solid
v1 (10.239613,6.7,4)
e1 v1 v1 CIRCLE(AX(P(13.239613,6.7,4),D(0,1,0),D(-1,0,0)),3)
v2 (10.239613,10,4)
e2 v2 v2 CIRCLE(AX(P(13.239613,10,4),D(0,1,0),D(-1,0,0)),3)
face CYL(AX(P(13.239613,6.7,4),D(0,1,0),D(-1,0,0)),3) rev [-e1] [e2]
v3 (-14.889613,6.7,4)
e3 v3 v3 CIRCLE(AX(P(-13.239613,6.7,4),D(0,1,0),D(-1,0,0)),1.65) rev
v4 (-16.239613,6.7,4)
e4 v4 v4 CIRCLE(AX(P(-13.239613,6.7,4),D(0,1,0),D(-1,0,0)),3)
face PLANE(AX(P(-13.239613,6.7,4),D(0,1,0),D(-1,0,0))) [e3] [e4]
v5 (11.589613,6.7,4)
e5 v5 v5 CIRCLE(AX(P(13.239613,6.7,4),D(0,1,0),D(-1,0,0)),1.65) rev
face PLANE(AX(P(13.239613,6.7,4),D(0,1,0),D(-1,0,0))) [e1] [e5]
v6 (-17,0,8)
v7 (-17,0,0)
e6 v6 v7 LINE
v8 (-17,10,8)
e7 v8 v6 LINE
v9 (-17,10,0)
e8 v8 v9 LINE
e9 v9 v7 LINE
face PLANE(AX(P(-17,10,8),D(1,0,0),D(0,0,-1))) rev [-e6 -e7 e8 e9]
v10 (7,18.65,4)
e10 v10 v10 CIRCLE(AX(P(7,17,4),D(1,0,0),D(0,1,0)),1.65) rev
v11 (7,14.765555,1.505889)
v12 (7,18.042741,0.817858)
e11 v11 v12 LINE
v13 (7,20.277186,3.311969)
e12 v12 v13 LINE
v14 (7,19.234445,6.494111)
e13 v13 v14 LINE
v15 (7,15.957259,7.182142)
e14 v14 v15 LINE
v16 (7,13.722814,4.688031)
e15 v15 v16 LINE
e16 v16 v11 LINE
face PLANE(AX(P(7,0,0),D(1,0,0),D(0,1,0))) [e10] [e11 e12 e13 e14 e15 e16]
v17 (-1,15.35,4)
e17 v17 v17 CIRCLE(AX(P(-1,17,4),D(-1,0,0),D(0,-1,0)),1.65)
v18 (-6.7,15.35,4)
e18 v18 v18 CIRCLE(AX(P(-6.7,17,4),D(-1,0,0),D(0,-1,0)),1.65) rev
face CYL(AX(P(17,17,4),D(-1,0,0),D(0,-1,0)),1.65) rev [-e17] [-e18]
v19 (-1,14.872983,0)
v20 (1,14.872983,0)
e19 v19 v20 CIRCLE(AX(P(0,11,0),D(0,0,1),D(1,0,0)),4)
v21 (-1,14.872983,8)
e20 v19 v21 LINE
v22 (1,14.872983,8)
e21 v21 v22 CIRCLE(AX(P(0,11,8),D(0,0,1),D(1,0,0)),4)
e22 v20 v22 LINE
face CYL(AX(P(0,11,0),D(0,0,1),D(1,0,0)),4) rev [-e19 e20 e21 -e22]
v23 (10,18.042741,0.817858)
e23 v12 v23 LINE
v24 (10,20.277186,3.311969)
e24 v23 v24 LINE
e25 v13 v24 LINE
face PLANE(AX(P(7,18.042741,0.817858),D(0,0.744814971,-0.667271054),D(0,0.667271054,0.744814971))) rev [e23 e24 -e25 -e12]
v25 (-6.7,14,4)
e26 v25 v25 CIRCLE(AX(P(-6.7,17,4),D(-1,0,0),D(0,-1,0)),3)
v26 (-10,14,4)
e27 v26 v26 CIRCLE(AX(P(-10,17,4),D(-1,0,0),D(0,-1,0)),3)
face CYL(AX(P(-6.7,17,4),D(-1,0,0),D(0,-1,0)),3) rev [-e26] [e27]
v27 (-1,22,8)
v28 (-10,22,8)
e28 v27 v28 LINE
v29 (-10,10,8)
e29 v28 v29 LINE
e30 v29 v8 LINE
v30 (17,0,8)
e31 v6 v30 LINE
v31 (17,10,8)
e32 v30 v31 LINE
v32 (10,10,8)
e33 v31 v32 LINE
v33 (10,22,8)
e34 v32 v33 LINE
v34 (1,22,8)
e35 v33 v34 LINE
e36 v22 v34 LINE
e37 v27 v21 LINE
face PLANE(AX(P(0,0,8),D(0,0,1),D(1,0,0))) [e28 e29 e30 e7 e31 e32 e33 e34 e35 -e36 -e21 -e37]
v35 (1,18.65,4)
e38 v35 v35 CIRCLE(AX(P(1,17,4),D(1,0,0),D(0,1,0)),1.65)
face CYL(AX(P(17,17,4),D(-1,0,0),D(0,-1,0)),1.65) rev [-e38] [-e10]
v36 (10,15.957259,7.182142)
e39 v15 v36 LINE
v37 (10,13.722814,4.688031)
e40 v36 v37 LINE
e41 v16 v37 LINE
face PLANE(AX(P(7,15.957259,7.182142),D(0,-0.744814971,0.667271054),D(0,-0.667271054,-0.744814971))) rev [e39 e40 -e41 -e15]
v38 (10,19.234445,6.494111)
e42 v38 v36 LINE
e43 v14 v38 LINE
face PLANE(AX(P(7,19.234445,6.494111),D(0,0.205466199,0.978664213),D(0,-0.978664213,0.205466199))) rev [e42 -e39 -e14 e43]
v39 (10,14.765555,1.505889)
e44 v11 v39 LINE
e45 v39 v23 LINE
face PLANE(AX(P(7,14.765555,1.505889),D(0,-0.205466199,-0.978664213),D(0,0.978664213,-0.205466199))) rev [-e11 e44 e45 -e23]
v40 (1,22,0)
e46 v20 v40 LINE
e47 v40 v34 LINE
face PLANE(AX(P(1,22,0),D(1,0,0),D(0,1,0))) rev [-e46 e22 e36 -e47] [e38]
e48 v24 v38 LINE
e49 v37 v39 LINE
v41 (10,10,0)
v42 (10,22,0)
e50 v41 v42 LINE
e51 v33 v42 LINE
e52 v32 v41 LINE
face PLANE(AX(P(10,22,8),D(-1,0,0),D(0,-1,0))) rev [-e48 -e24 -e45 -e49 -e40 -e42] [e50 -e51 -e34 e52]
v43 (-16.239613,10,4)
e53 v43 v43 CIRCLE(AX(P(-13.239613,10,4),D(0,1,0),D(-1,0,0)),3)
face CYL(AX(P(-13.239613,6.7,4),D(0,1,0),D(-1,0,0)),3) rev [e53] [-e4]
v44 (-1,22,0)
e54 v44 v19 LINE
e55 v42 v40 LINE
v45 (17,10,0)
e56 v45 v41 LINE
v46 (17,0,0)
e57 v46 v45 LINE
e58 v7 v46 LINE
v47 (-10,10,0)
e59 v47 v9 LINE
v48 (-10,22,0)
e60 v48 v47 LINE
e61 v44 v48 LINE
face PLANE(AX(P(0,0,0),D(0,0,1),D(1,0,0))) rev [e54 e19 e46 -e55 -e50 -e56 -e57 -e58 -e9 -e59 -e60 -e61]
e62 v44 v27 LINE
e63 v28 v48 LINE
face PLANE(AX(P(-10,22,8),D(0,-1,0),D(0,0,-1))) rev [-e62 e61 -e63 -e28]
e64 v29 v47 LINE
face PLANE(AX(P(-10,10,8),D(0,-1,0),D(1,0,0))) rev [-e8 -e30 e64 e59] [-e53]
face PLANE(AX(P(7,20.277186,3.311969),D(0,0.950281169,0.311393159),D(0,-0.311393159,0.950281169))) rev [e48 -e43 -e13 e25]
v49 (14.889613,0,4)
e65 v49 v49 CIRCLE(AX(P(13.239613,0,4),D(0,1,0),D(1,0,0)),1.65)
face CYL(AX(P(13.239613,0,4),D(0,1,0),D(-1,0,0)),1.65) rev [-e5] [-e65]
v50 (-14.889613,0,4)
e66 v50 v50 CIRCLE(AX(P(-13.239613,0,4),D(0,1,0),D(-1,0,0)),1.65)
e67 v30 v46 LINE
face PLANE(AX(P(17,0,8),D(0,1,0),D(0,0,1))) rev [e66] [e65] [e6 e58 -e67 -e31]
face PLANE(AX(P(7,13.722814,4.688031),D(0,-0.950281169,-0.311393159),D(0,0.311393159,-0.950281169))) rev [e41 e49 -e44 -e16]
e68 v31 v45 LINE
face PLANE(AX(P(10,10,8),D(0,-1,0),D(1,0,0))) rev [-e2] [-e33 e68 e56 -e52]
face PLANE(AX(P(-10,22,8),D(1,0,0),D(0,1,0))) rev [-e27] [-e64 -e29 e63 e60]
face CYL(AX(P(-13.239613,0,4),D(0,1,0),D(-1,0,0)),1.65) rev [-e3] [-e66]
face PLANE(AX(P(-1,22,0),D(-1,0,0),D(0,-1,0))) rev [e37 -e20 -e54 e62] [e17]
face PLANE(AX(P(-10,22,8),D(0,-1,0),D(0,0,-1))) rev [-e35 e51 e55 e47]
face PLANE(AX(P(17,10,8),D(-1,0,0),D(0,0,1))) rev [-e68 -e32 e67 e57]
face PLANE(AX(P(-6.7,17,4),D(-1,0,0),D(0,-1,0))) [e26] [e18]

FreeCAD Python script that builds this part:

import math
import FreeCAD as App
import Part
import Sketcher
Q = App.Units.Quantity

doc = App.newDocument("Part")
body = doc.addObject("PartDesign::Body", "Body")

sketch1 = body.newObject("Sketcher::SketchObject", "Sketch")
sketch1.AttachmentSupport = (doc.getObject("XY_Plane"), [""])
sketch1.MapMode = "FlatFace"
sketch1.addGeometry([
    Part.LineSegment(App.Vector(10, 22, 0), App.Vector(-10, 22, 0)),
    Part.LineSegment(App.Vector(-10, 22, 0), App.Vector(-10, 10, 0)),
    Part.LineSegment(App.Vector(-10, 10, 0), App.Vector(-17, 10, 0)),
    Part.LineSegment(App.Vector(-17, 10, 0), App.Vector(-17, 0, 0)),
    Part.LineSegment(App.Vector(-17, 0, 0), App.Vector(17, 0, 0)),
    Part.LineSegment(App.Vector(17, 0, 0), App.Vector(17, 10, 0)),
    Part.LineSegment(App.Vector(17, 10, 0), App.Vector(10, 10, 0)),
    Part.LineSegment(App.Vector(10, 10, 0), App.Vector(10, 22, 0)),
], False)
sketch1.addConstraint([
    Sketcher.Constraint("Coincident", 0, 2, 1, 1),
    Sketcher.Constraint("Coincident", 1, 2, 2, 1),
    Sketcher.Constraint("Coincident", 2, 2, 3, 1),
    Sketcher.Constraint("Coincident", 3, 2, 4, 1),
    Sketcher.Constraint("Coincident", 4, 2, 5, 1),
    Sketcher.Constraint("Coincident", 5, 2, 6, 1),
    Sketcher.Constraint("Coincident", 6, 2, 7, 1),
    Sketcher.Constraint("Coincident", 7, 2, 0, 1),
    Sketcher.Constraint("Horizontal", 0),
    Sketcher.Constraint("Vertical", 1),
    Sketcher.Constraint("Horizontal", 2),
    Sketcher.Constraint("Vertical", 3),
    Sketcher.Constraint("Horizontal", 4),
    Sketcher.Constraint("Vertical", 5),
    Sketcher.Constraint("Horizontal", 6),
    Sketcher.Constraint("Vertical", 7),
    Sketcher.Constraint("Symmetric", 3, 2, 4, 2, -1, 1),
    Sketcher.Constraint("Symmetric", 1, 2, 6, 2, -2),
    Sketcher.Constraint("DistanceX", 0, 2, 0, 1, Q("20 mm")),
    Sketcher.Constraint("DistanceX", 2, 2, 2, 1, Q("7 mm")),
    Sketcher.Constraint("DistanceY", 1, 2, 1, 1, Q("12 mm")),
    Sketcher.Constraint("DistanceY", 3, 2, 3, 1, Q("10 mm")),
])
pad1 = body.newObject("PartDesign::Pad", "Pad")
pad1.Profile = sketch1
pad1.Length = 8

sketch2 = body.newObject("Sketcher::SketchObject", "Sketch001")
sketch2.AttachmentSupport = (doc.getObject("XY_Plane"), [""])
sketch2.MapMode = "FlatFace"
sketch2.AttachmentOffset = App.Placement(App.Vector(0, 0, 8), App.Rotation())
sketch2.addGeometry([
    Part.LineSegment(App.Vector(1, 22, 0), App.Vector(-1, 22, 0)),
    Part.LineSegment(App.Vector(-1, 22, 0), App.Vector(-1, 14.9, 0)),
    Part.ArcOfCircle(Part.Circle(App.Vector(0, 11, 0), App.Vector(0, 0, 1), 4), math.radians(104), math.radians(436)),
    Part.LineSegment(App.Vector(1, 14.9, 0), App.Vector(1, 22, 0)),
], False)
sketch2.addConstraint([
    Sketcher.Constraint("Coincident", 0, 2, 1, 1),
    Sketcher.Constraint("Coincident", 1, 2, 2, 1),
    Sketcher.Constraint("Coincident", 2, 2, 3, 1),
    Sketcher.Constraint("Coincident", 3, 2, 0, 1),
    Sketcher.Constraint("Horizontal", 0),
    Sketcher.Constraint("Vertical", 1),
    Sketcher.Constraint("Vertical", 3),
    Sketcher.Constraint("Symmetric", 1, 2, 2, 2, -2),
    Sketcher.Constraint("Radius", 2, Q("4 mm")),
    Sketcher.Constraint("DistanceX", 0, 2, 0, 1, Q("2 mm")),
    Sketcher.Constraint("DistanceY", -1, 1, 2, 3, Q("11 mm")),
    Sketcher.Constraint("DistanceY", -1, 1, 0, 2, Q("22 mm")),
])
pocket1 = body.newObject("PartDesign::Pocket", "Pocket")
pocket1.Profile = sketch2
pocket1.Type = "ThroughAll"

sketch3 = body.newObject("Sketcher::SketchObject", "Sketch002")
sketch3.AttachmentSupport = (doc.getObject("YZ_Plane"), [""])
sketch3.MapMode = "FlatFace"
sketch3.AttachmentOffset = App.Placement(App.Vector(0, 0, -10), App.Rotation())
sketch3.addGeometry(Part.Circle(App.Vector(17, 4, 0), App.Vector(0, 0, 1), 1.6), False)
sketch3.addConstraint([
    Sketcher.Constraint("Diameter", 0, Q("3.3 mm")),
    Sketcher.Constraint("DistanceX", -1, 1, 0, 3, Q("17 mm")),
    Sketcher.Constraint("DistanceY", -1, 1, 0, 3, Q("4 mm")),
])
pocket2 = body.newObject("PartDesign::Pocket", "Pocket001")
pocket2.Profile = sketch3
pocket2.Type = "ThroughAll"
pocket2.Reversed = True

sketch4 = body.newObject("Sketcher::SketchObject", "Sketch003")
sketch4.AttachmentSupport = (doc.getObject("YZ_Plane"), [""])
sketch4.MapMode = "FlatFace"
sketch4.AttachmentOffset = App.Placement(App.Vector(0, 0, -10), App.Rotation())
sketch4.addGeometry(Part.Circle(App.Vector(17, 4, 0), App.Vector(0, 0, 1), 3), False)
sketch4.addConstraint([
    Sketcher.Constraint("Diameter", 0, Q("6 mm")),
    Sketcher.Constraint("DistanceX", -1, 1, 0, 3, Q("17 mm")),
    Sketcher.Constraint("DistanceY", -1, 1, 0, 3, Q("4 mm")),
])
pocket3 = body.newObject("PartDesign::Pocket", "Pocket002")
pocket3.Profile = sketch4
pocket3.Length = 3.3
pocket3.Reversed = True

sketch5 = body.newObject("Sketcher::SketchObject", "Sketch004")
sketch5.AttachmentSupport = (doc.getObject("YZ_Plane"), [""])
sketch5.MapMode = "FlatFace"
sketch5.AttachmentOffset = App.Placement(App.Vector(0, 0, 10), App.Rotation())
sketch5.addGeometry([
    Part.LineSegment(App.Vector(19.2, 6.5, 0), App.Vector(16, 7.2, 0)),
    Part.LineSegment(App.Vector(16, 7.2, 0), App.Vector(13.7, 4.7, 0)),
    Part.LineSegment(App.Vector(13.7, 4.7, 0), App.Vector(14.8, 1.5, 0)),
    Part.LineSegment(App.Vector(14.8, 1.5, 0), App.Vector(18, 0.8, 0)),
    Part.LineSegment(App.Vector(18, 0.8, 0), App.Vector(20.3, 3.3, 0)),
    Part.LineSegment(App.Vector(20.3, 3.3, 0), App.Vector(19.2, 6.5, 0)),
], False)
sketch5.addConstraint([
    Sketcher.Constraint("Coincident", 0, 2, 1, 1),
    Sketcher.Constraint("Coincident", 1, 2, 2, 1),
    Sketcher.Constraint("Coincident", 2, 2, 3, 1),
    Sketcher.Constraint("Coincident", 3, 2, 4, 1),
    Sketcher.Constraint("Coincident", 4, 2, 5, 1),
    Sketcher.Constraint("Coincident", 5, 2, 0, 1),
    Sketcher.Constraint("Parallel", 0, 3),
    Sketcher.Constraint("Parallel", 1, 4),
    Sketcher.Constraint("Parallel", 2, 5),
    Sketcher.Constraint("Equal", 0, 1),
    Sketcher.Constraint("Equal", 1, 2),
    Sketcher.Constraint("Equal", 2, 3),
    Sketcher.Constraint("Distance", 0, Q("3.348632 mm")),
    Sketcher.Constraint("DistanceX", -1, 1, 0, 2, Q("15.957259 mm")),
    Sketcher.Constraint("DistanceY", -1, 1, 0, 2, Q("7.182142 mm")),
    Sketcher.Constraint("DistanceY", -1, 1, 1, 2, Q("4.688031 mm")),
    Sketcher.Constraint("DistanceY", -1, 1, 2, 2, Q("1.505889 mm")),
    Sketcher.Constraint("DistanceX", -1, 1, 3, 2, Q("18.042741 mm")),
])
pocket4 = body.newObject("PartDesign::Pocket", "Pocket003")
pocket4.Profile = sketch5
pocket4.Length = 3

sketch6 = body.newObject("Sketcher::SketchObject", "Sketch005")
sketch6.AttachmentSupport = (doc.getObject("XZ_Plane"), [""])
sketch6.MapMode = "FlatFace"
sketch6.AttachmentOffset = App.Placement(App.Vector(0, 0, -10), App.Rotation())
sketch6.addGeometry([
    Part.Circle(App.Vector(-13.2, 4, 0), App.Vector(0, 0, 1), 1.6),
    Part.Circle(App.Vector(13.2, 4, 0), App.Vector(0, 0, 1), 1.6),
], False)
sketch6.addConstraint([
    Sketcher.Constraint("Equal", 0, 1),
    Sketcher.Constraint("Symmetric", 0, 3, 1, 3, -2),
    Sketcher.Constraint("Diameter", 0, Q("3.3 mm")),
    Sketcher.Constraint("DistanceY", -1, 1, 0, 3, Q("4 mm")),
    Sketcher.Constraint("DistanceX", 0, 3, -1, 1, Q("13.239613 mm")),
])
pocket5 = body.newObject("PartDesign::Pocket", "Pocket004")
pocket5.Profile = sketch6
pocket5.Type = "ThroughAll"
pocket5.Reversed = True

sketch7 = body.newObject("Sketcher::SketchObject", "Sketch006")
sketch7.AttachmentSupport = (doc.getObject("XZ_Plane"), [""])
sketch7.MapMode = "FlatFace"
sketch7.AttachmentOffset = App.Placement(App.Vector(0, 0, -10), App.Rotation())
sketch7.addGeometry([
    Part.Circle(App.Vector(13.2, 4, 0), App.Vector(0, 0, 1), 3),
    Part.Circle(App.Vector(-13.2, 4, 0), App.Vector(0, 0, 1), 3),
], False)
sketch7.addConstraint([
    Sketcher.Constraint("Equal", 0, 1),
    Sketcher.Constraint("Symmetric", 0, 3, 1, 3, -2),
    Sketcher.Constraint("Diameter", 0, Q("6 mm")),
    Sketcher.Constraint("DistanceY", -1, 1, 0, 3, Q("4 mm")),
    Sketcher.Constraint("DistanceX", -1, 1, 0, 3, Q("13.239613 mm")),
])
pocket6 = body.newObject("PartDesign::Pocket", "Pocket005")
pocket6.Profile = sketch7
pocket6.Length = 3.3
pocket6.Reversed = True

doc.recompute()
